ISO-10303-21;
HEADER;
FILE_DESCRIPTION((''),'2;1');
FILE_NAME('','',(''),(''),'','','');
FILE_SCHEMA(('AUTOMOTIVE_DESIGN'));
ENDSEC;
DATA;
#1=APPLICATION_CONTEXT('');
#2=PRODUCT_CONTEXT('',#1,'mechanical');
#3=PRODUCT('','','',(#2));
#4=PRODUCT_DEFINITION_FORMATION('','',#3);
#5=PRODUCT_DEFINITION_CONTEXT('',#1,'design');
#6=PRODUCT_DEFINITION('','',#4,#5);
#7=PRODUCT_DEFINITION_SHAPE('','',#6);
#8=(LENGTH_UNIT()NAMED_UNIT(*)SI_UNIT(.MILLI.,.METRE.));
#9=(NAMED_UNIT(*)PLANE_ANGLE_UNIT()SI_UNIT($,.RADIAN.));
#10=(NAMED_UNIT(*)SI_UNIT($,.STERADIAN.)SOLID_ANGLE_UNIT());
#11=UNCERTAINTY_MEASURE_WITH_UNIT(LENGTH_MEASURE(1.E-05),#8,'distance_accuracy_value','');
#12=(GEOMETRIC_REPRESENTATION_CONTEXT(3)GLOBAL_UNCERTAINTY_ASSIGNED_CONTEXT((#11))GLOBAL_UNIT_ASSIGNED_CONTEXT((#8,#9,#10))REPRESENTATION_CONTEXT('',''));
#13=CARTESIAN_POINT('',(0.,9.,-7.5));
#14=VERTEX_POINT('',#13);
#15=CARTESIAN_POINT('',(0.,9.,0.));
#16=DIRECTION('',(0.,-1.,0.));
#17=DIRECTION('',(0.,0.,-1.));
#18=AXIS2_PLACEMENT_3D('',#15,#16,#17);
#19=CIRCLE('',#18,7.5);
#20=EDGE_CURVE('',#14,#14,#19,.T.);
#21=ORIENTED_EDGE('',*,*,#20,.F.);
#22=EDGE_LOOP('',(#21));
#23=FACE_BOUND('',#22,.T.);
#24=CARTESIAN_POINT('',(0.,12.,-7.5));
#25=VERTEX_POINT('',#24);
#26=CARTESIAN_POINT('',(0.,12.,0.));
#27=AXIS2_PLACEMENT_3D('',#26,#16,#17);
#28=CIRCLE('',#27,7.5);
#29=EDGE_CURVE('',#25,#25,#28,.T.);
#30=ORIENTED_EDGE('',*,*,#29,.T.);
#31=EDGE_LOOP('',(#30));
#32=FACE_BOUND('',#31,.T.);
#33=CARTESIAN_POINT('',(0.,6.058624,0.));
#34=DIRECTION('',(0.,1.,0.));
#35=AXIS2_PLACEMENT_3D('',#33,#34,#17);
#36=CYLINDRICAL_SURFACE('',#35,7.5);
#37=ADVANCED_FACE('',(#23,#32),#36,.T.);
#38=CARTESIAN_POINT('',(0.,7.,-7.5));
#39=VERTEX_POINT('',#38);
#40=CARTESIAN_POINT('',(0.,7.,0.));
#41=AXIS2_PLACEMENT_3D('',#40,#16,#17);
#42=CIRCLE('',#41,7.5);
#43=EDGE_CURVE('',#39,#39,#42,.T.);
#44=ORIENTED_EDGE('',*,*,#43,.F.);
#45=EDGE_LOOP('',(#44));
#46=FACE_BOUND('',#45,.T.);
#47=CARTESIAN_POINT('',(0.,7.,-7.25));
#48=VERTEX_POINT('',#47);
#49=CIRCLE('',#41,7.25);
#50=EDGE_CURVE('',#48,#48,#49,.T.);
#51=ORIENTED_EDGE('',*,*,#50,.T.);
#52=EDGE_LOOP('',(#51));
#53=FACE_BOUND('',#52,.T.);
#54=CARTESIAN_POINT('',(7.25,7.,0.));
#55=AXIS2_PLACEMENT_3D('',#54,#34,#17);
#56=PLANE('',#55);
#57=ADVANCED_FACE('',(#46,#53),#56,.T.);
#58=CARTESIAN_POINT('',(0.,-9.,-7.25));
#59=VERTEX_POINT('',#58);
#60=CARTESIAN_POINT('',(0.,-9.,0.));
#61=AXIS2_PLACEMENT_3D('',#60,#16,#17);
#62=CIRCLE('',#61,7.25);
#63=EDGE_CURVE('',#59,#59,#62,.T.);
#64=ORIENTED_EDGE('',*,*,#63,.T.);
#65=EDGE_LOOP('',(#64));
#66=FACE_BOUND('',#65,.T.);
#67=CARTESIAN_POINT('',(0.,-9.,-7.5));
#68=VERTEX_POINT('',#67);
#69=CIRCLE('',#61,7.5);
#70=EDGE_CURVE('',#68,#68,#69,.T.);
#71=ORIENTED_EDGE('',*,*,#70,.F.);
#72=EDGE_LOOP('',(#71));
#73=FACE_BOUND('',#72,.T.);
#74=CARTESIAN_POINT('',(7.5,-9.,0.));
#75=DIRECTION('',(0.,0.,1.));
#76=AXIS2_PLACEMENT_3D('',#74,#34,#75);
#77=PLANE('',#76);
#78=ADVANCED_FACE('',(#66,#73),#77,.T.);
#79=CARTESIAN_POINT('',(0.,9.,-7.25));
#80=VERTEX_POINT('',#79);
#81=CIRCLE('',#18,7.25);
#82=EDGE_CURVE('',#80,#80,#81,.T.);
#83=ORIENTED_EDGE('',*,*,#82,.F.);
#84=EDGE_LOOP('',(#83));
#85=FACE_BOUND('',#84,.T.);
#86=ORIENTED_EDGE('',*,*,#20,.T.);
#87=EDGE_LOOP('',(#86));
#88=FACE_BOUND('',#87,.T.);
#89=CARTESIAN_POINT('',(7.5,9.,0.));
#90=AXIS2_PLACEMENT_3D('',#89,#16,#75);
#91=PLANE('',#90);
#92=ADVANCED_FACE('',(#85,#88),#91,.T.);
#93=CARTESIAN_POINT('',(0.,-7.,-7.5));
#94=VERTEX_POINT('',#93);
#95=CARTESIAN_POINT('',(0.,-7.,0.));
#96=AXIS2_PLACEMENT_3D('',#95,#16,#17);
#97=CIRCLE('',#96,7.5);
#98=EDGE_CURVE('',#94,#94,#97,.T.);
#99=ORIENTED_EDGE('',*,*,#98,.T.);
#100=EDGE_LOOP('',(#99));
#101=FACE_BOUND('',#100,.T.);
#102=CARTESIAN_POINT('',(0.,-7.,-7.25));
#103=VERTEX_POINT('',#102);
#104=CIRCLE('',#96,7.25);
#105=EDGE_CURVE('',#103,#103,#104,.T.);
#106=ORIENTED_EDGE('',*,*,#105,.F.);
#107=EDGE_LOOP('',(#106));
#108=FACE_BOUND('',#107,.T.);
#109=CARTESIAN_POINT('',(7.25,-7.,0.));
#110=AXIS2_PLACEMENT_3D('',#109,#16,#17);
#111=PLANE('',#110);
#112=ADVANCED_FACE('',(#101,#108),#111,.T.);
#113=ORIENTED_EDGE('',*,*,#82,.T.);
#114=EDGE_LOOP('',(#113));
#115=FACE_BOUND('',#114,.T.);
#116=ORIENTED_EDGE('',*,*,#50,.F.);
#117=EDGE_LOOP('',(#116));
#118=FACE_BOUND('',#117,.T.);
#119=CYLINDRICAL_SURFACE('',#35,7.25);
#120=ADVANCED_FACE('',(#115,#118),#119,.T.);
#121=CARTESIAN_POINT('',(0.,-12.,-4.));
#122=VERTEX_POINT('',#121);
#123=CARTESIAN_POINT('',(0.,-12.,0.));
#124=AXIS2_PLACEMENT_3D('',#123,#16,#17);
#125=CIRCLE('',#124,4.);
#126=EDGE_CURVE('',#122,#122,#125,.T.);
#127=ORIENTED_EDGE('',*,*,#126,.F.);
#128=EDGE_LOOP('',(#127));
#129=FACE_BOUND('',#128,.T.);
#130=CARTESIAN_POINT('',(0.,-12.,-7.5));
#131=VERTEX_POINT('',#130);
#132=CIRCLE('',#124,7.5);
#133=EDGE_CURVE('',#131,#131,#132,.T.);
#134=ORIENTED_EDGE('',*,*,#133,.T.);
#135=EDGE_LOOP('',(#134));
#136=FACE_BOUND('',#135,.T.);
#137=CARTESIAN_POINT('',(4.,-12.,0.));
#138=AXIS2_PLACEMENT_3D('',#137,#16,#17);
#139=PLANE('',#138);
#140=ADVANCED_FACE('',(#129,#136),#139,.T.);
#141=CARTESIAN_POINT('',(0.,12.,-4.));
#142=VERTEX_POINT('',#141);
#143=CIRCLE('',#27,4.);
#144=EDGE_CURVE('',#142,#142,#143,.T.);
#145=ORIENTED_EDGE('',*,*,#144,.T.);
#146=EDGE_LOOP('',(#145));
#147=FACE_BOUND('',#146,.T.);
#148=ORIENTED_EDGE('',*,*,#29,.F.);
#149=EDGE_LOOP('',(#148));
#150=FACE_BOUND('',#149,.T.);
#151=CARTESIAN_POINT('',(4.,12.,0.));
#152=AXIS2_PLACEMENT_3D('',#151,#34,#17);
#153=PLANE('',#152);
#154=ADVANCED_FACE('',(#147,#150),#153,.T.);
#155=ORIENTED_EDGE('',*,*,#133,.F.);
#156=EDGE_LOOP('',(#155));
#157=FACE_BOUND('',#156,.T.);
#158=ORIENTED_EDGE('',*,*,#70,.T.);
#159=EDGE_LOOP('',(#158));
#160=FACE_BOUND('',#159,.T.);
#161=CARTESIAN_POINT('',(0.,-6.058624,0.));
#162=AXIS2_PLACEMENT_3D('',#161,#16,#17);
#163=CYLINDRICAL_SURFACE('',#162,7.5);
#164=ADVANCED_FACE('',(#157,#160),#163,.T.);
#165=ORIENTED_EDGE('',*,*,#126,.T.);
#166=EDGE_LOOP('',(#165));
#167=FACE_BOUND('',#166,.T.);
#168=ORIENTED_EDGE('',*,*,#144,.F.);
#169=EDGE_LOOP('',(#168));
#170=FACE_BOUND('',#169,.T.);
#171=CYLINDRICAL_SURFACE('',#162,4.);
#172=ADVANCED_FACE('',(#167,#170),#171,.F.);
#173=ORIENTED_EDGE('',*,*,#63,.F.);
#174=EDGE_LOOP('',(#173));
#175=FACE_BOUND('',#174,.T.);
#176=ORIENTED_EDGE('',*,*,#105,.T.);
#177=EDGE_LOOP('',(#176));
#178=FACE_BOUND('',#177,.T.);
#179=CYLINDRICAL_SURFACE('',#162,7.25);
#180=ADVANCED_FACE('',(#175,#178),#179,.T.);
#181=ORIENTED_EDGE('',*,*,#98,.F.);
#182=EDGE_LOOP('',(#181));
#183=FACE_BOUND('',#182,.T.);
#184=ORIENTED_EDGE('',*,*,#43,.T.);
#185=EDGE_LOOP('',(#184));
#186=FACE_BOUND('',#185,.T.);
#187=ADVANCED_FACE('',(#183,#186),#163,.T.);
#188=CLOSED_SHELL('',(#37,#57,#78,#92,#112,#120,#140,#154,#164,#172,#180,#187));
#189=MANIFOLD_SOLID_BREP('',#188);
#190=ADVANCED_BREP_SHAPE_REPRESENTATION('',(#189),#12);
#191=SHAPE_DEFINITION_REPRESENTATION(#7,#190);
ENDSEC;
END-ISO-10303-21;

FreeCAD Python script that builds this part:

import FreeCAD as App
import Part
import Sketcher

V = App.Vector


def add_polygon(sketch, points):
    """Adds a closed chain of lines whose ends are joined by coincident constraints."""
    first, n = sketch.GeometryCount, len(points)
    for a, b in zip(points, points[1:] + points[:1]):
        sketch.addGeometry(Part.LineSegment(App.Vector(*a, 0), App.Vector(*b, 0)), False)
    for i in range(n):
        sketch.addConstraint(Sketcher.Constraint("Coincident", first + i, 2, first + (i + 1) % n, 1))

doc = App.newDocument("Part")
body = doc.addObject("PartDesign::Body", "Body")

# Sketch on XY plane
sketch1 = doc.addObject("Sketcher::SketchObject", "Sketch")
body.addObject(sketch1)
sketch1.AttachmentSupport = (doc.XY_Plane, [""])
sketch1.MapMode = "FlatFace"
add_polygon(sketch1, [(4, 0), (4, -12), (7.5, -12), (7.5, -9), (7.25, -9), (7.25, -7), (7.5, -7), (7.5, 0)])  # lines 0-7
sketch1.addConstraint([
    Sketcher.Constraint("Vertical", 0),
    Sketcher.Constraint("Horizontal", 1),
    Sketcher.Constraint("Vertical", 2),
    Sketcher.Constraint("Horizontal", 3),
    Sketcher.Constraint("Vertical", 4),
    Sketcher.Constraint("Horizontal", 5),
    Sketcher.Constraint("Vertical", 6),
    Sketcher.Constraint("Horizontal", 7),
    Sketcher.Constraint("PointOnObject", 6, 2, -1),
    Sketcher.Constraint("Vertical", 2, 2, 5, 2),
    Sketcher.Constraint("DistanceY", 0, 2, 0, 1, 12.0),
    Sketcher.Constraint("DistanceY", 2, 1, 2, 2, 3.0),
    Sketcher.Constraint("DistanceY", 4, 1, 4, 2, 2.0),
    Sketcher.Constraint("DistanceX", 1, 1, 1, 2, 3.5),
    Sketcher.Constraint("DistanceX", -1, 1, 0, 2, 4.0),
    Sketcher.Constraint("DistanceX", 3, 2, 3, 1, 0.25),
])
revolution = doc.addObject("PartDesign::Revolution", "Revolution")
body.addObject(revolution)
revolution.Profile = sketch1
revolution.ReferenceAxis = (sketch1, ["V_Axis"])
revolution.Angle = 360
doc.recompute()

mirrored = doc.addObject("PartDesign::Mirrored", "Mirrored")
body.addObject(mirrored)
mirrored.Originals = [revolution]
mirrored.MirrorPlane = (doc.XZ_Plane, [""])
body.Tip = mirrored

doc.recompute()
